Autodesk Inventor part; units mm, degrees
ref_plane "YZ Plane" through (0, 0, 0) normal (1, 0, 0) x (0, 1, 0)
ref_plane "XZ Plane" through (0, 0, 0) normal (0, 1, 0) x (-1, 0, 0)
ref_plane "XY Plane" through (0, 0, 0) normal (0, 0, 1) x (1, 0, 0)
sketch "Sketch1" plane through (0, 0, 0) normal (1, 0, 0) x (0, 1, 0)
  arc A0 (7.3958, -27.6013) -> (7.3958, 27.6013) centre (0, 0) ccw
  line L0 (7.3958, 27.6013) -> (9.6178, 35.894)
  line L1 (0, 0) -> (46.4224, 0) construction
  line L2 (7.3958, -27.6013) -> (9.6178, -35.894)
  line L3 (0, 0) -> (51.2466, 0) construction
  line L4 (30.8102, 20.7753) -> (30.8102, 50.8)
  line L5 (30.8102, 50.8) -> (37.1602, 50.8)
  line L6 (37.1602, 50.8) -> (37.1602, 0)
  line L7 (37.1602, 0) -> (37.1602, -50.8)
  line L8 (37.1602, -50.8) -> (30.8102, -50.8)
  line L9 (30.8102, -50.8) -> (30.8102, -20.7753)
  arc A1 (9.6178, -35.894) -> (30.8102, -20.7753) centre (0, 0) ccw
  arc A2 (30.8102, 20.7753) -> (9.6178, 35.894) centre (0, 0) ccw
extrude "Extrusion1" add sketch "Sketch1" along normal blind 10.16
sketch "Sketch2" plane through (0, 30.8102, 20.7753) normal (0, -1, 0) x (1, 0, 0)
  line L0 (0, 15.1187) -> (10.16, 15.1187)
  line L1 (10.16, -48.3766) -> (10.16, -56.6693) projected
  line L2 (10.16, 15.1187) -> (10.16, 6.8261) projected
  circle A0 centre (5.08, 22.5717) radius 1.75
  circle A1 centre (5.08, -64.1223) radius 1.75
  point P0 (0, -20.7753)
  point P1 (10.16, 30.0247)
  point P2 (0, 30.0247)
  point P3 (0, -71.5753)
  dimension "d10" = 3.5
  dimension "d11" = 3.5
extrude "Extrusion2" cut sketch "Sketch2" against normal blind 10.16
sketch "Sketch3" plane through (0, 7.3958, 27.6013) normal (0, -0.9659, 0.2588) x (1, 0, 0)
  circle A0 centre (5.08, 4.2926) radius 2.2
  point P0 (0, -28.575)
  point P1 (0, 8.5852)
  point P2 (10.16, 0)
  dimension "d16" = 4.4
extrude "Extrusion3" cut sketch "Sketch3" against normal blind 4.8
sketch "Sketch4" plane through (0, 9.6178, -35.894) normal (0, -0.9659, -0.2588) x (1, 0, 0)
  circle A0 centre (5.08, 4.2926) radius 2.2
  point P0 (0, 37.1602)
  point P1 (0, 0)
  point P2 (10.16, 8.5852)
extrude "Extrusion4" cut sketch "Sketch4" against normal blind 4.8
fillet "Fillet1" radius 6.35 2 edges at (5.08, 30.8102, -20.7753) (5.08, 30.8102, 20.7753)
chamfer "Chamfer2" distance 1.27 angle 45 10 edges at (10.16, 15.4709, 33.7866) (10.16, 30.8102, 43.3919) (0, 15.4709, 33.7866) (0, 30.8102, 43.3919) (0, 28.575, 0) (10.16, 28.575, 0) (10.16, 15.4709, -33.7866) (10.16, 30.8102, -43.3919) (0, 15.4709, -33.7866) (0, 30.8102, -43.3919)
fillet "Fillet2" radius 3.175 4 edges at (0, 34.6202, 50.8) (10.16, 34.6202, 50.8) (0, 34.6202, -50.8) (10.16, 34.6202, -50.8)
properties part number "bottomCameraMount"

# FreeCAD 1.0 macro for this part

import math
import FreeCAD as App
import Part
import Sketcher

V = App.Vector
Q = App.Units.Quantity


def edges_at(feature, points):
    """Names of the edges that pass closest to the given points."""
    edges = feature.Shape.Edges
    near = lambda p: min(range(len(edges)), key=lambda i: edges[i].distToShape(Part.Vertex(*p))[0])
    return sorted({f"Edge{near(p) + 1}" for p in points})

doc = App.newDocument("Part")
params = doc.addObject("Spreadsheet::Sheet", "Params")
for row, (alias, value) in enumerate([
    ("sketch1_height", "4 in"),
    ("sketch1_radius", "1.125 in"),
    ("sketch1_radius2", "1.463 in"),
    ("sketch1_width", "0.25 in"),
    ("pad1_length", "0.4 in"),
    ("pocket1_length", "0.4 in"),
    ("pocket2_length", "4.8 mm"),
    ("pocket3_length", "4.8 mm"),
    ("fillet_radius", "0.25 in"),
    ("chamfer_size", "0.05 in"),
    ("fillet2_radius", "0.125 in"),
], start=1):
    params.set(f"A{row}", alias)
    params.set(f"B{row}", "=" + value)
    params.setAlias(f"B{row}", alias)

body = doc.addObject("PartDesign::Body", "Body")

# Sketch on YZ plane
sketch1 = body.newObject("Sketcher::SketchObject", "Sketch")
sketch1.AttachmentSupport = (doc.getObject("YZ_Plane"), [""])
sketch1.MapMode = "FlatFace"
sketch1.addGeometry([
    Part.ArcOfCircle(Part.Circle(V(0, 0, 0), V(0, 0, 1), 29), math.radians(-75), math.radians(75)),  # 0
    Part.LineSegment(V(7, -28, 0), V(10, -36, 0)),  # 1
    Part.ArcOfCircle(Part.Circle(V(0, 0, 0), V(0, 0, 1), 37), math.radians(-75), math.radians(-34)),  # 2
    Part.LineSegment(V(31, -21, 0), V(31, -51, 0)),  # 3
    Part.LineSegment(V(31, -51, 0), V(37, -51, 0)),  # 4
    Part.LineSegment(V(37, -51, 0), V(37, 51, 0)),  # 5
    Part.LineSegment(V(37, 51, 0), V(31, 51, 0)),  # 6
    Part.LineSegment(V(31, 51, 0), V(31, 21, 0)),  # 7
    Part.ArcOfCircle(Part.Circle(V(0, 0, 0), V(0, 0, 1), 37), math.radians(34), math.radians(75)),  # 8
    Part.LineSegment(V(10, 36, 0), V(7, 28, 0)),  # 9
], False)
sketch1.addConstraint([
    Sketcher.Constraint("Coincident", 0, 1, 1, 1),
    Sketcher.Constraint("Coincident", 1, 2, 2, 1),
    Sketcher.Constraint("Coincident", 2, 2, 3, 1),
    Sketcher.Constraint("Coincident", 3, 2, 4, 1),
    Sketcher.Constraint("Coincident", 4, 2, 5, 1),
    Sketcher.Constraint("Coincident", 5, 2, 6, 1),
    Sketcher.Constraint("Coincident", 6, 2, 7, 1),
    Sketcher.Constraint("Coincident", 7, 2, 8, 1),
    Sketcher.Constraint("Coincident", 8, 2, 9, 1),
    Sketcher.Constraint("Coincident", 9, 2, 0, 2),
    Sketcher.Constraint("Vertical", 3),
    Sketcher.Constraint("Horizontal", 4),
    Sketcher.Constraint("Vertical", 5),
    Sketcher.Constraint("Horizontal", 6),
    Sketcher.Constraint("Vertical", 7),
    Sketcher.Constraint("Coincident", 0, 3, -1, 1),
    Sketcher.Constraint("Coincident", 2, 3, -1, 1),
    Sketcher.Constraint("Coincident", 8, 3, -1, 1),
    Sketcher.Constraint("Equal", 2, 8),
    Sketcher.Constraint("Symmetric", 3, 2, 6, 2, -1),
    Sketcher.Constraint("Vertical", 1, 2, 8, 2),
    Sketcher.Constraint("Vertical", 0, 1, 9, 2),
    Sketcher.Constraint("DistanceY", 5, 1, 5, 2, Q("4 in")),
    Sketcher.Constraint("Angle", 1, Q("-75.0001 deg")),
    Sketcher.Constraint("Radius", 0, Q("1.125 in")),
    Sketcher.Constraint("Radius", 2, Q("1.463 in")),
    Sketcher.Constraint("DistanceX", 4, 1, 4, 2, Q("0.25 in")),
    Sketcher.Constraint("DistanceX", -1, 1, 2, 2, Q("1.213 in")),
    Sketcher.Constraint("DistanceX", -1, 1, 0, 1, Q("7.3958 mm")),
])
sketch1.setExpression("Constraints[22]", "Params.sketch1_height")
sketch1.setExpression("Constraints[24]", "Params.sketch1_radius")
sketch1.setExpression("Constraints[25]", "Params.sketch1_radius2")
sketch1.setExpression("Constraints[26]", "Params.sketch1_width")
pad1 = body.newObject("PartDesign::Pad", "Pad")
pad1.Profile = sketch1
pad1.setExpression("Length", "Params.pad1_length")

# Sketch on XZ plane
sketch2 = body.newObject("Sketcher::SketchObject", "Sketch001")
sketch2.AttachmentSupport = (doc.getObject("XZ_Plane"), [""])
sketch2.MapMode = "FlatFace"
sketch2.AttachmentOffset = App.Placement(V(0, 0, -1.213 * 25.4), App.Rotation())
sketch2.addGeometry([
    Part.Circle(V(5.1, 43.3, 0), V(0, 0, 1), 1.8),
    Part.Circle(V(5.1, -43.3, 0), V(0, 0, 1), 1.8),
], False)
sketch2.addConstraint([
    Sketcher.Constraint("Equal", 0, 1),
    Sketcher.Constraint("Symmetric", 0, 3, 1, 3, -1),
    Sketcher.Constraint("Diameter", 0, Q("0.1378 in")),
    Sketcher.Constraint("DistanceX", -1, 1, 0, 3, Q("0.2 in")),
    Sketcher.Constraint("DistanceY", -1, 1, 0, 3, Q("43.347 mm")),
])
pocket1 = body.newObject("PartDesign::Pocket", "Pocket")
pocket1.Profile = sketch2
pocket1.setExpression("Length", "Params.pocket1_length")

# Sketch on an angled plane
sketch3 = body.newObject("Sketcher::SketchObject", "Sketch002")
sketch3.Placement = App.Placement(V(0, 7.3958, 27.6013), App.Rotation(V(1, 0, 0), V(0, 0.258819045, 0.965925826), V(0, -0.965925826, 0.258819045), "ZXY"))
sketch3.addGeometry(Part.Circle(V(5.1, 4.3, 0), V(0, 0, 1), 2.2), False)
sketch3.addConstraint([
    Sketcher.Constraint("Diameter", 0, Q("4.4 mm")),
    Sketcher.Constraint("DistanceX", -1, 1, 0, 3, Q("0.2 in")),
    Sketcher.Constraint("DistanceY", -1, 1, 0, 3, Q("0.169 in")),
])
pocket2 = body.newObject("PartDesign::Pocket", "Pocket001")
pocket2.Profile = sketch3
pocket2.setExpression("Length", "Params.pocket2_length")

# Sketch on an angled plane
sketch4 = body.newObject("Sketcher::SketchObject", "Sketch003")
sketch4.Placement = App.Placement(V(0, 9.6178, -35.894), App.Rotation(V(1, 0, 0), V(0, -0.258819045, 0.965925826), V(0, -0.965925826, -0.258819045), "ZXY"))
sketch4.addGeometry(Part.Circle(V(5.1, 4.3, 0), V(0, 0, 1), 2.2), False)
sketch4.addConstraint([
    Sketcher.Constraint("DistanceX", -1, 1, 0, 3, Q("0.2 in")),
    Sketcher.Constraint("Diameter", 0, Q("4.4 mm")),
    Sketcher.Constraint("DistanceY", -1, 1, 0, 3, Q("0.169 in")),
])
pocket3 = body.newObject("PartDesign::Pocket", "Pocket002")
pocket3.Profile = sketch4
pocket3.setExpression("Length", "Params.pocket3_length")
doc.recompute()

fillet = body.newObject("PartDesign::Fillet", "Fillet")
fillet.Base = (pocket3, edges_at(pocket3, [(5.08, 30.81, -20.775), (5.08, 30.81, 20.775)]))
fillet.setExpression("Radius", "Params.fillet_radius")
doc.recompute()

chamfer = body.newObject("PartDesign::Chamfer", "Chamfer")
chamfer.Base = (fillet, edges_at(fillet, [
    (10.16, 15.471, 33.787),
    (10.16, 30.81, 43.392),
    (0, 15.471, 33.787),
    (0, 30.81, 43.392),
    (0, 28.575, 0),
    (10.16, 28.575, 0),
    (10.16, 15.471, -33.787),
    (10.16, 30.81, -43.392),
    (0, 15.471, -33.787),
    (0, 30.81, -43.392),
]))
chamfer.setExpression("Size", "Params.chamfer_size")
doc.recompute()

fillet2 = body.newObject("PartDesign::Fillet", "Fillet001")
fillet2.Base = (chamfer, edges_at(chamfer, [
    (0, 34.62, 50.8),
    (10.16, 34.62, 50.8),
    (0, 34.62, -50.8),
    (10.16, 34.62, -50.8),
]))
fillet2.setExpression("Radius", "Params.fillet2_radius")

doc.recompute()
